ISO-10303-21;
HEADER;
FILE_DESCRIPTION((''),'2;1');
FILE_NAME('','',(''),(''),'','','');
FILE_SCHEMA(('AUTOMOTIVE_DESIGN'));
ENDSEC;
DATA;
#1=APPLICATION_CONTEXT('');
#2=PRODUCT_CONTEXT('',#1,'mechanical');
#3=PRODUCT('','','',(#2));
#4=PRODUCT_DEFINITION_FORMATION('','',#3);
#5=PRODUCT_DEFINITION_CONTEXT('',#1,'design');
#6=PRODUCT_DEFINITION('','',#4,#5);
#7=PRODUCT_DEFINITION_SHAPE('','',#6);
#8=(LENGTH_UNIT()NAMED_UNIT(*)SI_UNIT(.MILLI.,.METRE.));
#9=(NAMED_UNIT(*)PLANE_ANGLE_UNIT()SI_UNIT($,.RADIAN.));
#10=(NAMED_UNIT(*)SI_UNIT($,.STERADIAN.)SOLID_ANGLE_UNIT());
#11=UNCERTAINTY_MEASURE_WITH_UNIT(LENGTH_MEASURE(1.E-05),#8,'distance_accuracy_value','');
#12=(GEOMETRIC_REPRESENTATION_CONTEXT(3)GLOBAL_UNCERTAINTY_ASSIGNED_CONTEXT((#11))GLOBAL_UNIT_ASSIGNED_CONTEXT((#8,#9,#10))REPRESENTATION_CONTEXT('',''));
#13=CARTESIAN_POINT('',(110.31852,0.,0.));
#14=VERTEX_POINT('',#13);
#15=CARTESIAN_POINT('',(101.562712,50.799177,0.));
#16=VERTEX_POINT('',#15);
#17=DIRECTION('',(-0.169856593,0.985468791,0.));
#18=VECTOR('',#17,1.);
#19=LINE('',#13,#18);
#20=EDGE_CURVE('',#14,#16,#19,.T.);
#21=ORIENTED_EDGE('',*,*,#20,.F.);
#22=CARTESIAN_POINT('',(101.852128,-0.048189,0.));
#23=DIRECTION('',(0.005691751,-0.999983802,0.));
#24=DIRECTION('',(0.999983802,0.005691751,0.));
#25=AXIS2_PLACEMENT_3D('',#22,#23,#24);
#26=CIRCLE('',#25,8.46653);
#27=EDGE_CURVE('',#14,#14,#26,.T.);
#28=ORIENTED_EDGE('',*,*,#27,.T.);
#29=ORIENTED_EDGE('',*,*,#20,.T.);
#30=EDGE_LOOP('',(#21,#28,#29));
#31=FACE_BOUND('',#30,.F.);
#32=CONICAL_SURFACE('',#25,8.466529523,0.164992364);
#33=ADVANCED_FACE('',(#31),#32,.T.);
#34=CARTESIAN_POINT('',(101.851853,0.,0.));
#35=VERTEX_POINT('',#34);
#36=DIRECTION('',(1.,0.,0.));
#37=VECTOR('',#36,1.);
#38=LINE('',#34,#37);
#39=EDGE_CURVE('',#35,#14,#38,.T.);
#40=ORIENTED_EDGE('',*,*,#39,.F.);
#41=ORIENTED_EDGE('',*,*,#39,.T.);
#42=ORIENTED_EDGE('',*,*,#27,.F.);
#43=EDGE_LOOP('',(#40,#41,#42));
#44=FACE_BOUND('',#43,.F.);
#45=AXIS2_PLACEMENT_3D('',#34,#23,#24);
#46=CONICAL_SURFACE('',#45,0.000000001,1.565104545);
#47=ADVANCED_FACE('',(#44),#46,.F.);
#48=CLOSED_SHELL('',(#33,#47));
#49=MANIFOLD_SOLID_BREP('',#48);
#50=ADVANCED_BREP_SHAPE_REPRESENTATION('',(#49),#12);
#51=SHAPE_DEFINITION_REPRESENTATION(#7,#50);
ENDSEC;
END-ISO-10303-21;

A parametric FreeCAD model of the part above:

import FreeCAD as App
import Part
import Sketcher

V = App.Vector
Q = App.Units.Quantity

doc = App.newDocument("Part")
params = doc.addObject("Spreadsheet::Sheet", "Params")
for row, (alias, value) in enumerate([
    ("sketch1_length", "2 in"),
    ("revolution_angle", "360 deg"),
], start=1):
    params.set(f"A{row}", alias)
    params.set(f"B{row}", "=" + value)
    params.setAlias(f"B{row}", alias)

body = doc.addObject("PartDesign::Body", "Body")

sketch1 = body.newObject("Sketcher::SketchObject", "Sketch")
sketch1.AttachmentSupport = (doc.getObject("XY_Plane"), [""])
sketch1.MapMode = "FlatFace"
sketch1.addGeometry([
    Part.LineSegment(V(102, 51, 0), V(102, 0, 0)),
    Part.LineSegment(V(102, 0, 0), V(110, 0, 0)),
    Part.LineSegment(V(110, 0, 0), V(102, 51, 0)),
], False)
sketch1.addGeometry(Part.LineSegment(V(102, 51, 0), V(102, 0, 0)), True)
sketch1.addConstraint([
    Sketcher.Constraint("Coincident", 0, 2, 1, 1),
    Sketcher.Constraint("Coincident", 1, 2, 2, 1),
    Sketcher.Constraint("Coincident", 2, 2, 0, 1),
    Sketcher.Constraint("Horizontal", 1),
    Sketcher.Constraint("Coincident", 3, 1, 2, 2),
    Sketcher.Constraint("PointOnObject", 0, 2, -1),
    Sketcher.Constraint("Parallel", 0, 3),
    Sketcher.Constraint("Distance", 0, Q("2 in")),
    Sketcher.Constraint("Distance", 3, Q("50.84819 mm")),
    Sketcher.Constraint("DistanceX", 1, 1, 1, 2, Q("8.466667 mm")),
    Sketcher.Constraint("DistanceX", -1, 1, 1, 2, Q("110.31852 mm")),
    Sketcher.Constraint("DistanceX", 2, 2, 0, 2, Q("0.289141 mm")),
])
sketch1.setExpression("Constraints[7]", "Params.sketch1_length")
revolution = body.newObject("PartDesign::Revolution", "Revolution")
revolution.Profile = sketch1
revolution.ReferenceAxis = (sketch1, ["Axis0"])
revolution.setExpression("Angle", "Params.revolution_angle")

doc.recompute()
